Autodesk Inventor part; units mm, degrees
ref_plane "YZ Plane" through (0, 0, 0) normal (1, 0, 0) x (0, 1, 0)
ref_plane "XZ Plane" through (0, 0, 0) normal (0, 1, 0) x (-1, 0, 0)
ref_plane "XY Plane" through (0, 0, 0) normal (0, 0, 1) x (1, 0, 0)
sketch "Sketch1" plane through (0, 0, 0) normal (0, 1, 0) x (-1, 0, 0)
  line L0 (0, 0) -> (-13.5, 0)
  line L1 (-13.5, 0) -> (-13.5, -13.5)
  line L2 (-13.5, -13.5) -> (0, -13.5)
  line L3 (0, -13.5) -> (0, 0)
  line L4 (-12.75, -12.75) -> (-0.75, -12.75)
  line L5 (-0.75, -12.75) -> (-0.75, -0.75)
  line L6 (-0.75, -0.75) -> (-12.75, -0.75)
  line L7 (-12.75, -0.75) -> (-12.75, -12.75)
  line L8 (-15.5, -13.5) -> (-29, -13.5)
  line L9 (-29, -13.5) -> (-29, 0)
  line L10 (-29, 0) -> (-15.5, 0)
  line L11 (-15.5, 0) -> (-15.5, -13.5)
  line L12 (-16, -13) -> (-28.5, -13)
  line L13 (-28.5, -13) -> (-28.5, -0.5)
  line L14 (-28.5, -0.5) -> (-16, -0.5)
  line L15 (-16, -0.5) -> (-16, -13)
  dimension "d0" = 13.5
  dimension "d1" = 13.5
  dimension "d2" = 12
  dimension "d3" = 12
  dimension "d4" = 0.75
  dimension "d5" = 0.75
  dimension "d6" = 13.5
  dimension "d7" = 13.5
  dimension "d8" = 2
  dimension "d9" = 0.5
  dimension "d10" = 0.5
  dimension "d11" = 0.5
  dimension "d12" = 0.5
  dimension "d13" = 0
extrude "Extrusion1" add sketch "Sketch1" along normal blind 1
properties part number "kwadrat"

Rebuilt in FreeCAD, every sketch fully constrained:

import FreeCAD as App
import Part
import Sketcher

V = App.Vector


def add_polygon(sketch, points):
    """Adds a closed chain of lines whose ends are joined by coincident constraints."""
    first, n = sketch.GeometryCount, len(points)
    for a, b in zip(points, points[1:] + points[:1]):
        sketch.addGeometry(Part.LineSegment(App.Vector(*a, 0), App.Vector(*b, 0)), False)
    for i in range(n):
        sketch.addConstraint(Sketcher.Constraint("Coincident", first + i, 2, first + (i + 1) % n, 1))

doc = App.newDocument("Part")
body = doc.addObject("PartDesign::Body", "Body")
body.AllowCompound = True

sketch1 = body.newObject("Sketcher::SketchObject", "Sketch")
sketch1.AttachmentSupport = (doc.getObject("XZ_Plane"), [""])
sketch1.MapMode = "FlatFace"
add_polygon(sketch1, [(0, -14), (0, 0), (14, 0), (14, -14)])
add_polygon(sketch1, [(1, -13), (13, -13), (13, -1), (1, -1)])
add_polygon(sketch1, [(29, -14), (16, -14), (16, 0), (29, 0)])
add_polygon(sketch1, [(16, 0), (16, -13), (28, -13), (28, 0)])
sketch1.addConstraint(Sketcher.Constraint("Vertical", 0))
sketch1.addConstraint(Sketcher.Constraint("Horizontal", 1))
sketch1.addConstraint(Sketcher.Constraint("Vertical", 2))
sketch1.addConstraint(Sketcher.Constraint("Horizontal", 3))
sketch1.addConstraint(Sketcher.Constraint("Horizontal", 4))
sketch1.addConstraint(Sketcher.Constraint("Vertical", 5))
sketch1.addConstraint(Sketcher.Constraint("Horizontal", 6))
sketch1.addConstraint(Sketcher.Constraint("Vertical", 7))
sketch1.addConstraint(Sketcher.Constraint("Horizontal", 8))
sketch1.addConstraint(Sketcher.Constraint("Vertical", 9))
sketch1.addConstraint(Sketcher.Constraint("Horizontal", 10))
sketch1.addConstraint(Sketcher.Constraint("Vertical", 11))
sketch1.addConstraint(Sketcher.Constraint("Vertical", 12))
sketch1.addConstraint(Sketcher.Constraint("Horizontal", 13))
sketch1.addConstraint(Sketcher.Constraint("Vertical", 14))
sketch1.addConstraint(Sketcher.Constraint("Horizontal", 15))
sketch1.addConstraint(Sketcher.Constraint("Coincident", 0, 2, -1, 1))
sketch1.addConstraint(Sketcher.Constraint("PointOnObject", 9, 2, -1))
sketch1.addConstraint(Sketcher.Constraint("Horizontal", 3, 2, 8, 2))
sketch1.addConstraint(Sketcher.Constraint("Equal", 3, 8))
sketch1.addConstraint(Sketcher.Constraint("Equal", 10, 0))
sketch1.addConstraint(Sketcher.Constraint("Equal", 6, 5))
sketch1.addConstraint(Sketcher.Constraint("Equal", 15, 12))
sketch1.addConstraint(Sketcher.Constraint("DistanceX", 4, 1, 4, 2, 12.0))
sketch1.addConstraint(Sketcher.Constraint("DistanceX", 1, 1, 1, 2, 13.5))
sketch1.addConstraint(Sketcher.Constraint("DistanceX", 2, 2, 8, 2, 2.0))
sketch1.addConstraint(Sketcher.Constraint("DistanceY", 14, 2, -1, 1, 0.5))
sketch1.addConstraint(Sketcher.Constraint("DistanceX", 8, 2, 12, 2, 0.5))
sketch1.addConstraint(Sketcher.Constraint("DistanceY", 8, 2, 12, 2, 0.5))
sketch1.addConstraint(Sketcher.Constraint("DistanceY", 5, 2, -1, 1, 0.75))
sketch1.addConstraint(Sketcher.Constraint("DistanceX", -1, 1, 6, 2, 0.75))
pad1 = body.newObject("PartDesign::Pad", "Pad")
pad1.Profile = sketch1
pad1.Length = 1
pad1.Reversed = True

doc.recompute()
